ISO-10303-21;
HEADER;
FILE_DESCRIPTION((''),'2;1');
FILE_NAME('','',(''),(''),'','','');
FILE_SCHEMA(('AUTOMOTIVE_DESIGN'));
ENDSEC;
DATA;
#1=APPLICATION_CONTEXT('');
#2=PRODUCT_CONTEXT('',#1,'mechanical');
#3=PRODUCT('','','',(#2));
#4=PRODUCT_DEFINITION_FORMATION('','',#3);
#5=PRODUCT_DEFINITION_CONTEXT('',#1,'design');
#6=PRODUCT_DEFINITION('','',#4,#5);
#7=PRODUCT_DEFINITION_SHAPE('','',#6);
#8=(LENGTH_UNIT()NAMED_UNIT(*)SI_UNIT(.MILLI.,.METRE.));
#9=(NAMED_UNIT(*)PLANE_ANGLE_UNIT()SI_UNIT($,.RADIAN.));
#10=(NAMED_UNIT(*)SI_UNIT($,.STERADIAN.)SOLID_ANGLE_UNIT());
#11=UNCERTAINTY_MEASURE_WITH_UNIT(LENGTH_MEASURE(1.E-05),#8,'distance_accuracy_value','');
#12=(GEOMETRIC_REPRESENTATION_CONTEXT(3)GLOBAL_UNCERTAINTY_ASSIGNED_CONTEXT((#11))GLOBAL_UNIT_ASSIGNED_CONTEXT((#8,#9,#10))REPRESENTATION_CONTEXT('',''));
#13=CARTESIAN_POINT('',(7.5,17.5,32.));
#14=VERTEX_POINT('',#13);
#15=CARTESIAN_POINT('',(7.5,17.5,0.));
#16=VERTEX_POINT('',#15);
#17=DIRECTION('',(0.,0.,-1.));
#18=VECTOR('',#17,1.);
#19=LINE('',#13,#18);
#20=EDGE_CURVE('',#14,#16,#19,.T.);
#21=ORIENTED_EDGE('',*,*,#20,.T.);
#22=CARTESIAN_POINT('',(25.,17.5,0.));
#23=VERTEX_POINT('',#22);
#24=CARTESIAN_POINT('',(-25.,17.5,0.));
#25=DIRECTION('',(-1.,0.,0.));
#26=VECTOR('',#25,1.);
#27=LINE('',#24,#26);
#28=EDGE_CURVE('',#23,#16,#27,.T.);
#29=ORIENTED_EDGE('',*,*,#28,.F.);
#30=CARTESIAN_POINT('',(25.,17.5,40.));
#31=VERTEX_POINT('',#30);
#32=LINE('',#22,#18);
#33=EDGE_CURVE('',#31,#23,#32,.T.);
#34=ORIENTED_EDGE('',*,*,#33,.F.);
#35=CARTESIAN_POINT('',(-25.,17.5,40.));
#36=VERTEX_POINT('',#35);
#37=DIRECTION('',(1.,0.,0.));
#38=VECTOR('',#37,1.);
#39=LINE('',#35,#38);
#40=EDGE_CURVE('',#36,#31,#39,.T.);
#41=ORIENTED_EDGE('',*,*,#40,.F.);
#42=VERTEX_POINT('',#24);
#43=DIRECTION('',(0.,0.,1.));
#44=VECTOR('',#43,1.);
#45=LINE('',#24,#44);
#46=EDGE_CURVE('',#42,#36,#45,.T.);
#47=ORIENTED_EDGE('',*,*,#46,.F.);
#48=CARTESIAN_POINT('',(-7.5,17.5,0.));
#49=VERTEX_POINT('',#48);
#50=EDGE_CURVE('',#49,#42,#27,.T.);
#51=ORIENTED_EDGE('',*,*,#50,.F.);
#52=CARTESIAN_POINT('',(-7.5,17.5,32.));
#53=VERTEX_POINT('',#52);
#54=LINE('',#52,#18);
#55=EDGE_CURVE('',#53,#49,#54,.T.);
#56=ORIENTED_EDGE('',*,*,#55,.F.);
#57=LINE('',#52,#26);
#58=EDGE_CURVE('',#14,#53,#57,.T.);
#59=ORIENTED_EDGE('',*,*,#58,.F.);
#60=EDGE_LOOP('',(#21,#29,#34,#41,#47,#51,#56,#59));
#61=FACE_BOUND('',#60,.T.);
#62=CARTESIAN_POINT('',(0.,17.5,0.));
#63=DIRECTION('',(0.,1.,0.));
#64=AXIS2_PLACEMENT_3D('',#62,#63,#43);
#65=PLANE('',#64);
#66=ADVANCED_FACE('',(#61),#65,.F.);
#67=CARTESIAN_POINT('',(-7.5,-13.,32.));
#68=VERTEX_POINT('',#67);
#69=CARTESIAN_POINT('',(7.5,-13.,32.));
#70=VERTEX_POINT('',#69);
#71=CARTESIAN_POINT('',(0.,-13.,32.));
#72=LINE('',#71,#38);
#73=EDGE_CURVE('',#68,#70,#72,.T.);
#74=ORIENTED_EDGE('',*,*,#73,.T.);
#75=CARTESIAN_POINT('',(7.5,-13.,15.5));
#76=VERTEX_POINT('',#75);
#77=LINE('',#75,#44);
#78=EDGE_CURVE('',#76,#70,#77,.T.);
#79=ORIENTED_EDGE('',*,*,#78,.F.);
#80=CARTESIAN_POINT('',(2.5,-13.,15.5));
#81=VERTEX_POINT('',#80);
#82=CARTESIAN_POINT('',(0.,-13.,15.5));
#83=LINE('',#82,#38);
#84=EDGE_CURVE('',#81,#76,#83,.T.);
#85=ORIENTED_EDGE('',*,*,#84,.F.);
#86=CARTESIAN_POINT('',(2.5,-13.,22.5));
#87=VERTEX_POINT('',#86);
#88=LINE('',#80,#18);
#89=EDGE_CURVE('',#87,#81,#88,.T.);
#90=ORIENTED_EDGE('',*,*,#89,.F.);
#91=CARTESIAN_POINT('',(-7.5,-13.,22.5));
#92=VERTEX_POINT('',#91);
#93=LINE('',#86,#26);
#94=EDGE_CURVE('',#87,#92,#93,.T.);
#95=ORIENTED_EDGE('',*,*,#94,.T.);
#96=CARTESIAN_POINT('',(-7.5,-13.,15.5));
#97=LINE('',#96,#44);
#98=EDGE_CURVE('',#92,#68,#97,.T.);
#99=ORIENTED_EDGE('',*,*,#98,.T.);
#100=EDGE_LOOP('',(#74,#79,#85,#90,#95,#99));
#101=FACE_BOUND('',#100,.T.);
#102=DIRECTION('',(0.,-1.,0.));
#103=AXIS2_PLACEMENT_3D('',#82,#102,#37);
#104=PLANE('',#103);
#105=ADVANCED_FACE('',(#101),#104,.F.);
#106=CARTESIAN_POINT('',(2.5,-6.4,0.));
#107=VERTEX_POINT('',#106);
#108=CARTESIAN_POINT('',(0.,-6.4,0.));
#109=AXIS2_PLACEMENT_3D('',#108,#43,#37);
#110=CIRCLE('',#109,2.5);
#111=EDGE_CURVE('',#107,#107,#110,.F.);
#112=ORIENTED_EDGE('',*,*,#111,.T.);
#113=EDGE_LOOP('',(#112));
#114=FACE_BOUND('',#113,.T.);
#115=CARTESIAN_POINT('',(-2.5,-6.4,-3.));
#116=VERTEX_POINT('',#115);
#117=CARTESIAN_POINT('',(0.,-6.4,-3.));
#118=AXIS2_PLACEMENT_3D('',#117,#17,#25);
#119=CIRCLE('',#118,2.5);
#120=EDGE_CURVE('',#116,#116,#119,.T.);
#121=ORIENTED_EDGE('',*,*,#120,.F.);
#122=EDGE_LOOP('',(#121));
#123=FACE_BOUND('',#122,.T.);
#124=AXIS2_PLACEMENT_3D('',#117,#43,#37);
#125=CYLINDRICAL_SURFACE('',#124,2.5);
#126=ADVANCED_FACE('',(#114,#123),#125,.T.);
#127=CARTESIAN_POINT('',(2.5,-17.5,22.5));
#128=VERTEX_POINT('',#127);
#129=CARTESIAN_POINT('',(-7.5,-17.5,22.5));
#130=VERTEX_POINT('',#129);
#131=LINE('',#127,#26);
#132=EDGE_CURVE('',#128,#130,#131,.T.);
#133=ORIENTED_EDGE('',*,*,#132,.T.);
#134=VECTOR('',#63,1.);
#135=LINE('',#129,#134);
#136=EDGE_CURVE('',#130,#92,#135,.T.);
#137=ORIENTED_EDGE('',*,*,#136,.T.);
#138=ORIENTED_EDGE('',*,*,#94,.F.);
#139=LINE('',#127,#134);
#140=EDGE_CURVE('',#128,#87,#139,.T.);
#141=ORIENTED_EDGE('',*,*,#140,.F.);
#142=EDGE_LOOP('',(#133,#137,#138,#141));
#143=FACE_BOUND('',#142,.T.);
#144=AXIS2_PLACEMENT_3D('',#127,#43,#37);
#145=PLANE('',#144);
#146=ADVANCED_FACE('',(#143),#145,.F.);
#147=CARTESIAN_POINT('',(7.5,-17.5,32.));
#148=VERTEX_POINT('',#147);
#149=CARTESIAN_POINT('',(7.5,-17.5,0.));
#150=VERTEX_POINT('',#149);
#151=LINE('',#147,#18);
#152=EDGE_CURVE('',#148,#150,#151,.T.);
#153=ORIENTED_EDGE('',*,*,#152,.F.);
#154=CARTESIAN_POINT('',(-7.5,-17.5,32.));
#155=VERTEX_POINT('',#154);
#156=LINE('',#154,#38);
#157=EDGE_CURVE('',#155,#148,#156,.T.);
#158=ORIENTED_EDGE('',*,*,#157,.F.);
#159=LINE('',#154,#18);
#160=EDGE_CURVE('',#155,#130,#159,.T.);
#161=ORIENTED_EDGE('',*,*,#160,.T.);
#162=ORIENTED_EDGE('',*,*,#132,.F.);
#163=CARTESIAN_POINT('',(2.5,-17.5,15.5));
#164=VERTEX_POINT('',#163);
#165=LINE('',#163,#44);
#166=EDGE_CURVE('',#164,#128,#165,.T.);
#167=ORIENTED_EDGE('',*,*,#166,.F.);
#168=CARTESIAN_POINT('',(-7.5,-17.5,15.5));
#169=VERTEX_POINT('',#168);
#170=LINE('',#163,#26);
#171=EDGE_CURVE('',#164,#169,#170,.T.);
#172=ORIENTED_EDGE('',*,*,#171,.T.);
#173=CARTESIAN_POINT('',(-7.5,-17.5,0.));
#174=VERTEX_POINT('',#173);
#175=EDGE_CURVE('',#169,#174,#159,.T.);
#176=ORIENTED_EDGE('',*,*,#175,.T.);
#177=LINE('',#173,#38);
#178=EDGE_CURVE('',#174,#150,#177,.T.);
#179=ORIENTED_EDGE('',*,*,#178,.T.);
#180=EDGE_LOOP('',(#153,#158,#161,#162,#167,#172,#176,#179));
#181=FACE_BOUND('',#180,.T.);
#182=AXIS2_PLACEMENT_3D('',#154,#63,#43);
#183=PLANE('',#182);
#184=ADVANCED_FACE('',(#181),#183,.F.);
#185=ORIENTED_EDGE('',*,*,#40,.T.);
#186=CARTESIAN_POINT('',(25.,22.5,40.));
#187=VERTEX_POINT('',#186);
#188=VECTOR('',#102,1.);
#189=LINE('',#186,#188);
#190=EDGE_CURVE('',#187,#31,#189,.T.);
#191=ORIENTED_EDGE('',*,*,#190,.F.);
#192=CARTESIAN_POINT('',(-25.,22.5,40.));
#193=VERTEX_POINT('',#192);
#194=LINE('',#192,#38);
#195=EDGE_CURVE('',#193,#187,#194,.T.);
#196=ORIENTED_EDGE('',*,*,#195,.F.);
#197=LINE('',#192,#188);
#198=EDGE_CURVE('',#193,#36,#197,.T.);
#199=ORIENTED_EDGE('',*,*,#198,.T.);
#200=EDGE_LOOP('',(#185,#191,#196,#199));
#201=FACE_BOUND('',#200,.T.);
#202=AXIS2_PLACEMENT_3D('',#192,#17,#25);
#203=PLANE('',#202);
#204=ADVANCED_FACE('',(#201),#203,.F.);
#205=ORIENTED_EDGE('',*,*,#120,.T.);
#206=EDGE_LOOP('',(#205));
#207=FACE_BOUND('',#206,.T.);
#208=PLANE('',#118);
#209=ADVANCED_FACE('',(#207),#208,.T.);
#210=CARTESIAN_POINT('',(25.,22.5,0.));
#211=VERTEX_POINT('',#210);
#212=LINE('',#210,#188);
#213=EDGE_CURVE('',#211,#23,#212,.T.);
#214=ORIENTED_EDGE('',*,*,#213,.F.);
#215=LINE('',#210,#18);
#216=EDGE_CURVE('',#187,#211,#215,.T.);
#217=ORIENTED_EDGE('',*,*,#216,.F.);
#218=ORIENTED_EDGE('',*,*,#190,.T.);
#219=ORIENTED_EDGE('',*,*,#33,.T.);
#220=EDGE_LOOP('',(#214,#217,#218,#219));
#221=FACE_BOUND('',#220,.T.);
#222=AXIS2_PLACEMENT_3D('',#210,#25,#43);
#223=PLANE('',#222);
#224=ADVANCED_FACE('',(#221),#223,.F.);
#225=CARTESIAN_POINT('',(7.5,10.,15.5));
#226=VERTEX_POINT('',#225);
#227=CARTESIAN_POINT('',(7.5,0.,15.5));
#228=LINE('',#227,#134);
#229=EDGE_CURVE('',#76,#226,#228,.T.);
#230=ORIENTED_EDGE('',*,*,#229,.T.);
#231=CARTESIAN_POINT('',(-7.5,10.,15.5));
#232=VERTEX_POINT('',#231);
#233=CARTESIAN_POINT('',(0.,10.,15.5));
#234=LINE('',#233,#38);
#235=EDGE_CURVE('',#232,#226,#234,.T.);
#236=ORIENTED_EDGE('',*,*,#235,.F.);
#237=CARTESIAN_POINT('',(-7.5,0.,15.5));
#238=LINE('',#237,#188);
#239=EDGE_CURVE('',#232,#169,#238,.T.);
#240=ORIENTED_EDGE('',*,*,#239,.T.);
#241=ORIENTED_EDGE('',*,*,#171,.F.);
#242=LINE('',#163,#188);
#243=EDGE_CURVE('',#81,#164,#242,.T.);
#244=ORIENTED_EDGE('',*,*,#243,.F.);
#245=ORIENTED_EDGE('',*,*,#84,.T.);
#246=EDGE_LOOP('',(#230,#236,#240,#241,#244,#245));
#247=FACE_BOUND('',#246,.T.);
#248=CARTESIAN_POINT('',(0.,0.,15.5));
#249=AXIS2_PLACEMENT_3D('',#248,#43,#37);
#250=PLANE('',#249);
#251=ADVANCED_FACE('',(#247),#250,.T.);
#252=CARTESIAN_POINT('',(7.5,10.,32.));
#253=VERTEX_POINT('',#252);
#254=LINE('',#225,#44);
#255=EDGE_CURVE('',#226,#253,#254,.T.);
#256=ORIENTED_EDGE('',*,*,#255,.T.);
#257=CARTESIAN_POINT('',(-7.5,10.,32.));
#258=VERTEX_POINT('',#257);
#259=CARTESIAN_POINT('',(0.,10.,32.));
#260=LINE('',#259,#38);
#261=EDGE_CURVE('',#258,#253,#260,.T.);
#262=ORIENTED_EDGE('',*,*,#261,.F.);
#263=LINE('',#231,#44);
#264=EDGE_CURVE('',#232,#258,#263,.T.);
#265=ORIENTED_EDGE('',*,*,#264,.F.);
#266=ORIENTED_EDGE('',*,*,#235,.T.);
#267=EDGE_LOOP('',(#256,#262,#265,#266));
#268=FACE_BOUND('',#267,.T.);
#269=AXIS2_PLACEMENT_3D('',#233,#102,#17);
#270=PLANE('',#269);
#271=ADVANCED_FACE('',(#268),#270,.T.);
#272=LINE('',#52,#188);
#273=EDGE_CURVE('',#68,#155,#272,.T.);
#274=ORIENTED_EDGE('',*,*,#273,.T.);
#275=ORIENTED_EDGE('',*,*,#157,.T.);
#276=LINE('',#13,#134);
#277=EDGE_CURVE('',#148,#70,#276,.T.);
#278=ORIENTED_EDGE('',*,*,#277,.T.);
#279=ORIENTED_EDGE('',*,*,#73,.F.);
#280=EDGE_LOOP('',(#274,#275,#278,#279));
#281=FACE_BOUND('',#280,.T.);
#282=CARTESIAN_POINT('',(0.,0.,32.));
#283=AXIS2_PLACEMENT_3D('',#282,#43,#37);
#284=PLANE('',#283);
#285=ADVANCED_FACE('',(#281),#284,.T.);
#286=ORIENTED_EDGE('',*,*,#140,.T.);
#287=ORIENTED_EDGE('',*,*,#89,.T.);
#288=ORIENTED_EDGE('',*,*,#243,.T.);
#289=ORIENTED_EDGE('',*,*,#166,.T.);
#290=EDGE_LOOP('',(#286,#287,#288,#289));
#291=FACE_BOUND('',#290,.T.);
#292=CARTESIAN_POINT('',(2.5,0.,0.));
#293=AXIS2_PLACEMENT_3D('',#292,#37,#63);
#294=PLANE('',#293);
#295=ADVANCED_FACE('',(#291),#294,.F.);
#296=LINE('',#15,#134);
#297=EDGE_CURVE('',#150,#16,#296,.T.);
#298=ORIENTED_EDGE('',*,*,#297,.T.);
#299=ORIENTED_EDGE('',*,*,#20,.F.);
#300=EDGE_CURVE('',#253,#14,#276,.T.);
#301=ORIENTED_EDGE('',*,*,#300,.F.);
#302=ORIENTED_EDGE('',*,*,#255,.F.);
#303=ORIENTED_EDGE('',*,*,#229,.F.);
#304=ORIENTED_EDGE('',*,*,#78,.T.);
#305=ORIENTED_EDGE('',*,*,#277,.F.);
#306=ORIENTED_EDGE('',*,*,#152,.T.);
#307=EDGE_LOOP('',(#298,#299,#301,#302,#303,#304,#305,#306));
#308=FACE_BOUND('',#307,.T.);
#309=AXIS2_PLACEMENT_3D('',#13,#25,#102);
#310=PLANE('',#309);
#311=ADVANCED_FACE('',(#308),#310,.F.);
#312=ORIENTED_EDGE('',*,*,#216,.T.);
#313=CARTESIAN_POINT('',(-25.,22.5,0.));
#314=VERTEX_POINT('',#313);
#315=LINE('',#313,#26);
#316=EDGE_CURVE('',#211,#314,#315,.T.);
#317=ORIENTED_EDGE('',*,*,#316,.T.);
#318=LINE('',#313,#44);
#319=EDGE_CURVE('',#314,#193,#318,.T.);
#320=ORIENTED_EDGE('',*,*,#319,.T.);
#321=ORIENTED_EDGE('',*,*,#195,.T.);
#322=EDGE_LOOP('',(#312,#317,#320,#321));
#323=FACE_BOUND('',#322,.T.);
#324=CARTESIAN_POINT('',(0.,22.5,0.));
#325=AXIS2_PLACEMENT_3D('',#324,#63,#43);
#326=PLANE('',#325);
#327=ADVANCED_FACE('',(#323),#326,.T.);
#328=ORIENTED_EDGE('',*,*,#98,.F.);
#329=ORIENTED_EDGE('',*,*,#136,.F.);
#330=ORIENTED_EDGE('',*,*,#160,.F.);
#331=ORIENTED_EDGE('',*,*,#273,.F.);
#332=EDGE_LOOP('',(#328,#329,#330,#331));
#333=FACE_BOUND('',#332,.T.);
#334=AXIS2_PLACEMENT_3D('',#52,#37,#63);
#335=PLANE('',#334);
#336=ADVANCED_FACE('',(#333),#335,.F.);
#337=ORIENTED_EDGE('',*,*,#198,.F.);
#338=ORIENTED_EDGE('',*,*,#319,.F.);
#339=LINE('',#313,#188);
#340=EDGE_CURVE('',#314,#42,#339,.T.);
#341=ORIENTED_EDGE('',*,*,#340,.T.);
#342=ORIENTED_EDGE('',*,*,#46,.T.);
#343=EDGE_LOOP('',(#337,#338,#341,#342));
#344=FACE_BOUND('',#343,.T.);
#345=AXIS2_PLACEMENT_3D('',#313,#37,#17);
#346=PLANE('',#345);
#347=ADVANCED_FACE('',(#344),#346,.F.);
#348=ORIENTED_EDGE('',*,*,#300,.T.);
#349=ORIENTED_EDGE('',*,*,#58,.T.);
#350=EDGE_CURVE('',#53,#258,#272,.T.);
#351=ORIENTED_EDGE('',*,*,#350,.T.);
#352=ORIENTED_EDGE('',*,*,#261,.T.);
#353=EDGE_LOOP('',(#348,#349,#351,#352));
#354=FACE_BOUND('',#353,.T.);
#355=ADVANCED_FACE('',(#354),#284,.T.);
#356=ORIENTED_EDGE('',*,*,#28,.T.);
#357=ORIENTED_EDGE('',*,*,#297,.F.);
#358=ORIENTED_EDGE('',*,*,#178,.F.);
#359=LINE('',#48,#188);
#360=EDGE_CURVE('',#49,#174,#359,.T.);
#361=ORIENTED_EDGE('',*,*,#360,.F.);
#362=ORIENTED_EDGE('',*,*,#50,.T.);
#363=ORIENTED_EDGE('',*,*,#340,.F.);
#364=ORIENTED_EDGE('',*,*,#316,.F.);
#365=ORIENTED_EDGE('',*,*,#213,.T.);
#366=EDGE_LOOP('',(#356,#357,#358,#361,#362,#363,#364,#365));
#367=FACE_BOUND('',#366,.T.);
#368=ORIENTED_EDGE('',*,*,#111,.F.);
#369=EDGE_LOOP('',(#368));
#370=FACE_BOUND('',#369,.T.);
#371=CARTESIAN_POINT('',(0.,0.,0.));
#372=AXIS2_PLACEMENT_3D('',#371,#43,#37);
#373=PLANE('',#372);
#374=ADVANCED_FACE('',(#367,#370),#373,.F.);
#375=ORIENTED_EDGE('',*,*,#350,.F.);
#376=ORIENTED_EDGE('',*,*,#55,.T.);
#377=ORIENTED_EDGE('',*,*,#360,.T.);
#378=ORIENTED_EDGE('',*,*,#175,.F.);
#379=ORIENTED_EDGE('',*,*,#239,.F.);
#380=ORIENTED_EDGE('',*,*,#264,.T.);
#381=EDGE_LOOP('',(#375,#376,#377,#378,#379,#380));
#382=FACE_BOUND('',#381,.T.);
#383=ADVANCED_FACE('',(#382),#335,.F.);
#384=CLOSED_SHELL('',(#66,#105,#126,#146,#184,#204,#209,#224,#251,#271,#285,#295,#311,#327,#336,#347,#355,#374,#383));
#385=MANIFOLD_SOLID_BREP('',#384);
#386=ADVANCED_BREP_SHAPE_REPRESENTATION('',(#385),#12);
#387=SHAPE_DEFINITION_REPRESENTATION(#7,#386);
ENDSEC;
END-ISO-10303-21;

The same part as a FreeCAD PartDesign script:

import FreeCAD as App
import Part
import Sketcher

V = App.Vector


def add_polygon(sketch, points):
    """Adds a closed chain of lines whose ends are joined by coincident constraints."""
    first, n = sketch.GeometryCount, len(points)
    for a, b in zip(points, points[1:] + points[:1]):
        sketch.addGeometry(Part.LineSegment(App.Vector(*a, 0), App.Vector(*b, 0)), False)
    for i in range(n):
        sketch.addConstraint(Sketcher.Constraint("Coincident", first + i, 2, first + (i + 1) % n, 1))

doc = App.newDocument("Part")
body = doc.addObject("PartDesign::Body", "Body")

sketch1 = body.newObject("Sketcher::SketchObject", "Sketch")
sketch1.AttachmentSupport = (doc.getObject("XY_Plane"), [""])
sketch1.MapMode = "FlatFace"
add_polygon(sketch1, [(-8, 18), (-8, -18), (8, -18), (8, 18)])
sketch1.addConstraint(Sketcher.Constraint("Vertical", 0))
sketch1.addConstraint(Sketcher.Constraint("Horizontal", 1))
sketch1.addConstraint(Sketcher.Constraint("Vertical", 2))
sketch1.addConstraint(Sketcher.Constraint("Horizontal", 3))
sketch1.addConstraint(Sketcher.Constraint("Symmetric", 0, 2, 2, 2, -1, 1))
sketch1.addConstraint(Sketcher.Constraint("DistanceX", 1, 1, 1, 2, 15.0))
sketch1.addConstraint(Sketcher.Constraint("DistanceY", 0, 2, 0, 1, 35.0))
pad1 = body.newObject("PartDesign::Pad", "Pad")
pad1.Profile = sketch1
pad1.Length = 32

sketch2 = body.newObject("Sketcher::SketchObject", "Sketch001")
sketch2.AttachmentSupport = (doc.getObject("XY_Plane"), [""])
sketch2.MapMode = "FlatFace"
sketch2.AttachmentOffset = App.Placement(V(0, 0, 32), App.Rotation())
add_polygon(sketch2, [(-8, 10), (-8, -13), (8, -13), (8, 10)])
sketch2.addConstraint(Sketcher.Constraint("Vertical", 0))
sketch2.addConstraint(Sketcher.Constraint("Horizontal", 1))
sketch2.addConstraint(Sketcher.Constraint("Vertical", 2))
sketch2.addConstraint(Sketcher.Constraint("Horizontal", 3))
sketch2.addConstraint(Sketcher.Constraint("DistanceX", 1, 1, 1, 2, 15.0))
sketch2.addConstraint(Sketcher.Constraint("DistanceY", 0, 2, 0, 1, 23.0))
sketch2.addConstraint(Sketcher.Constraint("DistanceY", 0, 2, -1, 1, 13.0))
sketch2.addConstraint(Sketcher.Constraint("DistanceX", 0, 2, -1, 1, 7.5))
pocket1 = body.newObject("PartDesign::Pocket", "Pocket")
pocket1.Profile = sketch2
pocket1.Length = 16.5

sketch3 = body.newObject("Sketcher::SketchObject", "Sketch002")
sketch3.AttachmentSupport = (doc.getObject("XY_Plane"), [""])
sketch3.MapMode = "FlatFace"
sketch3.addGeometry(Part.Circle(V(0, -6.4, 0), V(0, 0, 1), 2.5), False)
sketch3.addConstraint(Sketcher.Constraint("PointOnObject", 0, 3, -2))
sketch3.addConstraint(Sketcher.Constraint("Diameter", 0, 5.0))
sketch3.addConstraint(Sketcher.Constraint("DistanceY", 0, 3, -1, 1, 6.4))
pad2 = body.newObject("PartDesign::Pad", "Pad001")
pad2.Profile = sketch3
pad2.Length = 3
pad2.Reversed = True

sketch4 = body.newObject("Sketcher::SketchObject", "Sketch003")
sketch4.AttachmentSupport = (doc.getObject("XZ_Plane"), [""])
sketch4.MapMode = "FlatFace"
sketch4.AttachmentOffset = App.Placement(V(0, 0, -17.5), App.Rotation())
add_polygon(sketch4, [(-25, 0), (-25, 40), (25, 40), (25, 0)])
sketch4.addConstraint(Sketcher.Constraint("Vertical", 0))
sketch4.addConstraint(Sketcher.Constraint("Horizontal", 1))
sketch4.addConstraint(Sketcher.Constraint("Vertical", 2))
sketch4.addConstraint(Sketcher.Constraint("Horizontal", 3))
sketch4.addConstraint(Sketcher.Constraint("Symmetric", 2, 2, 3, 2, -1, 1))
sketch4.addConstraint(Sketcher.Constraint("DistanceX", 1, 1, 1, 2, 50.0))
sketch4.addConstraint(Sketcher.Constraint("DistanceY", 0, 1, 0, 2, 40.0))
pad3 = body.newObject("PartDesign::Pad", "Pad002")
pad3.Profile = sketch4
pad3.Length = 5
pad3.Reversed = True

sketch5 = body.newObject("Sketcher::SketchObject", "Sketch004")
sketch5.AttachmentSupport = (doc.getObject("YZ_Plane"), [""])
sketch5.MapMode = "FlatFace"
sketch5.AttachmentOffset = App.Placement(V(0, 0, -7.5), App.Rotation())
add_polygon(sketch5, [(-13, 15.5), (-17.5, 15.5), (-17.5, 22.5), (-13, 22.5)])
sketch5.addConstraint(Sketcher.Constraint("Horizontal", 0))
sketch5.addConstraint(Sketcher.Constraint("Vertical", 1))
sketch5.addConstraint(Sketcher.Constraint("Horizontal", 2))
sketch5.addConstraint(Sketcher.Constraint("Vertical", 3))
sketch5.addConstraint(Sketcher.Constraint("DistanceY", 1, 1, 1, 2, 7.0))
sketch5.addConstraint(Sketcher.Constraint("DistanceX", 0, 2, 0, 1, 4.5))
sketch5.addConstraint(Sketcher.Constraint("DistanceX", 2, 2, -1, 1, 13.0))
sketch5.addConstraint(Sketcher.Constraint("DistanceY", -1, 1, 0, 2, 15.5))
pocket2 = body.newObject("PartDesign::Pocket", "Pocket001")
pocket2.Profile = sketch5
pocket2.Length = 10
pocket2.Reversed = True

doc.recompute()
